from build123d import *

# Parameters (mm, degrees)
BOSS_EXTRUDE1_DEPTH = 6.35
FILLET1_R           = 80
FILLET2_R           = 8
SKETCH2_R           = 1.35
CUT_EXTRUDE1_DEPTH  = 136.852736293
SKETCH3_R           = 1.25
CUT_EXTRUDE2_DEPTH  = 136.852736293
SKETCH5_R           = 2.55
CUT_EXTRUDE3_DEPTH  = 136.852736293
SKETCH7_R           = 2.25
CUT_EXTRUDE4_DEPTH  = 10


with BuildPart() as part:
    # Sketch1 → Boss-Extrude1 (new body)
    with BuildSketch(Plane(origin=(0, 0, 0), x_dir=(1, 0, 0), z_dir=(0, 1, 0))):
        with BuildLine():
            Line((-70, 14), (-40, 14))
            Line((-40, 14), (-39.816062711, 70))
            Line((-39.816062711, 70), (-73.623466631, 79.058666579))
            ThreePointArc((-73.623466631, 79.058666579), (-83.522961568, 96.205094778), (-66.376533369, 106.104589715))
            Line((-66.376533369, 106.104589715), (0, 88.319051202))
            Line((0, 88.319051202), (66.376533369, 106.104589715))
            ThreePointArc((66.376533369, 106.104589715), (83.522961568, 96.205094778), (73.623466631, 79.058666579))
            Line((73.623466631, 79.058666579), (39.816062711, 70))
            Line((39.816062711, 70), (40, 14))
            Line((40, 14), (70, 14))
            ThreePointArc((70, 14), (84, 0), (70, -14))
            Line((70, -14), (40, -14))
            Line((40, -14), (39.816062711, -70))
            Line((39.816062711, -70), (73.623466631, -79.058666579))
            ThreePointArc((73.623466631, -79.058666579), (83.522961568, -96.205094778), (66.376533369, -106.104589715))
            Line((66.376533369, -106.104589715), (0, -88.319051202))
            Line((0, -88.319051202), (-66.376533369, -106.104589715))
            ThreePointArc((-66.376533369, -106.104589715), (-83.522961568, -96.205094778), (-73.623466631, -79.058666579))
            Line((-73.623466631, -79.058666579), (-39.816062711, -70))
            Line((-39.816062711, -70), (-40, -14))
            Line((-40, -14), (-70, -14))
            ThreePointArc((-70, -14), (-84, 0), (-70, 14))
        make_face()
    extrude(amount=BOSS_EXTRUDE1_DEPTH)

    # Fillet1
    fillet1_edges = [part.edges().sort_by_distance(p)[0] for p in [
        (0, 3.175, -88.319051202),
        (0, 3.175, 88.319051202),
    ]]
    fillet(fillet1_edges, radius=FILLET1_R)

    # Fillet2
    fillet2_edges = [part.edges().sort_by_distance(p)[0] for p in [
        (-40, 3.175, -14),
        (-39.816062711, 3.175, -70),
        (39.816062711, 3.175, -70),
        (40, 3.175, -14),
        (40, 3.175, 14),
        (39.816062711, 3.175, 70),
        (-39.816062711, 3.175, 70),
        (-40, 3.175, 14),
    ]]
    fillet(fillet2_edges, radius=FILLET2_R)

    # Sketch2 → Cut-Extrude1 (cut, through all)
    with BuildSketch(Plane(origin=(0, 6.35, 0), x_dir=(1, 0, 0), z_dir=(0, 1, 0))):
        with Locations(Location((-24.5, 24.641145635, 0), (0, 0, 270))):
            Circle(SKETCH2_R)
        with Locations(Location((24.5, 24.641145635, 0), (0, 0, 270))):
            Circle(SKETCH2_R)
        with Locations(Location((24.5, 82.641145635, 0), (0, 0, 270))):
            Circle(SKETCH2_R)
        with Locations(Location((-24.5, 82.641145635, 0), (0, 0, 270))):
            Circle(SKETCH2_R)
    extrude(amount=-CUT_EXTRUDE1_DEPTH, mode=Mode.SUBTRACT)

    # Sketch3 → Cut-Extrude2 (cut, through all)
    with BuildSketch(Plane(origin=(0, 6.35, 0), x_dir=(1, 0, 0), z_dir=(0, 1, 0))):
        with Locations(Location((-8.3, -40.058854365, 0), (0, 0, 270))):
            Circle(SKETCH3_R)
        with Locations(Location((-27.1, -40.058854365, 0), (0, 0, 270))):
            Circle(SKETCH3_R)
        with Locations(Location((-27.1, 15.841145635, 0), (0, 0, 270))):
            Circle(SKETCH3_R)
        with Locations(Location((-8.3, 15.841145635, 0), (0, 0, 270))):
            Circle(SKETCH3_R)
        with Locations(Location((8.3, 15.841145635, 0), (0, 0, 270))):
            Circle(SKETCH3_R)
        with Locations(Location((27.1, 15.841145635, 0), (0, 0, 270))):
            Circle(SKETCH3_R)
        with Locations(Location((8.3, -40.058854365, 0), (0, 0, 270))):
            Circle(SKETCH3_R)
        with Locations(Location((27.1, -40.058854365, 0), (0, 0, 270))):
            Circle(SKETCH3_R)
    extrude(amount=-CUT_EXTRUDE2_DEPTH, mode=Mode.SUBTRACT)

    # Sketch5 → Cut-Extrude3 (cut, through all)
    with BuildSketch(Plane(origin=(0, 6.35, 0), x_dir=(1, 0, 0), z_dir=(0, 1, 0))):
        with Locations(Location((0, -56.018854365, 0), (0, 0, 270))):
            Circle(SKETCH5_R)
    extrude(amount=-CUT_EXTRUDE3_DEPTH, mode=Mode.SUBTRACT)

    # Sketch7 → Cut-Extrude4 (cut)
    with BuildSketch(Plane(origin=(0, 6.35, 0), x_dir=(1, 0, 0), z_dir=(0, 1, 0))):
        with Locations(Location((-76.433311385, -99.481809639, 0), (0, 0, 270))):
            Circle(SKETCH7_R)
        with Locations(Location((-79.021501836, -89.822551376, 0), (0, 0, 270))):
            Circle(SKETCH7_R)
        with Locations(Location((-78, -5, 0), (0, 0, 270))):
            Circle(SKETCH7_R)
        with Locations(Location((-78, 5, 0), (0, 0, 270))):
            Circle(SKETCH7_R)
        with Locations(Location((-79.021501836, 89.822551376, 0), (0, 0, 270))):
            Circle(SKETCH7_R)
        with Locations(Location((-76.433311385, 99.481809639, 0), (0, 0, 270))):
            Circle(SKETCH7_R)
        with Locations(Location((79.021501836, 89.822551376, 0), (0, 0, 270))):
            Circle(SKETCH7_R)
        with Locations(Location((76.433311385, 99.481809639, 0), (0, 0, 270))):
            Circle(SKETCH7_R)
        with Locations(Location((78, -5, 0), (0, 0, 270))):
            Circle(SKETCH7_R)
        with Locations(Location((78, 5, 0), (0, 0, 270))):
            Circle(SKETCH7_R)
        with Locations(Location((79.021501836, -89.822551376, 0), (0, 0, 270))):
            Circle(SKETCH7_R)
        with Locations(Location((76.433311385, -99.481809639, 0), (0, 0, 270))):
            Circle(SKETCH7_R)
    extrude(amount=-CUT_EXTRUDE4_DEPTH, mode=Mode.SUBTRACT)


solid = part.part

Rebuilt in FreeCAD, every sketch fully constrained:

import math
import FreeCAD as App
import Part
import Sketcher

V = App.Vector
Q = App.Units.Quantity


def edges_at(feature, points):
    """Names of the edges that pass closest to the given points."""
    edges = feature.Shape.Edges
    near = lambda p: min(range(len(edges)), key=lambda i: edges[i].distToShape(Part.Vertex(*p))[0])
    return sorted({f"Edge{near(p) + 1}" for p in points})

doc = App.newDocument("Part")
body = doc.addObject("PartDesign::Body", "Body")

sketch1 = body.newObject("Sketcher::SketchObject", "Sketch")
sketch1.AttachmentSupport = (doc.getObject("XZ_Plane"), [""])
sketch1.MapMode = "FlatFace"
sketch1.addGeometry([
    Part.LineSegment(V(-40, -14, 0), V(-70, -14, 0)),
    Part.ArcOfCircle(Part.Circle(V(-70, 0, 0), V(0, 0, 1), 14), math.radians(90), math.radians(270)),
    Part.LineSegment(V(-70, 14, 0), V(-40, 14, 0)),
    Part.LineSegment(V(-40, 14, 0), V(-39.816063, 70, 0)),
    Part.LineSegment(V(-39.816063, 70, 0), V(-73.623467, 79.058667, 0)),
    Part.ArcOfCircle(Part.Circle(V(-70, 92.581628, 0), V(0, 0, 1), 14), math.radians(75), math.radians(255)),
    Part.LineSegment(V(-66.376533, 106.10459, 0), V(0, 88.319051, 0)),
    Part.LineSegment(V(0, 88.319051, 0), V(66.376533, 106.10459, 0)),
    Part.ArcOfCircle(Part.Circle(V(70, 92.581628, 0), V(0, 0, 1), 14), math.radians(-75), math.radians(105)),
    Part.LineSegment(V(73.623467, 79.058667, 0), V(39.816063, 70, 0)),
    Part.LineSegment(V(39.816063, 70, 0), V(40, 14, 0)),
    Part.LineSegment(V(40, 14, 0), V(70, 14, 0)),
    Part.ArcOfCircle(Part.Circle(V(70, 0, 0), V(0, 0, 1), 14), math.radians(-90), math.radians(90)),
    Part.LineSegment(V(70, -14, 0), V(40, -14, 0)),
    Part.LineSegment(V(40, -14, 0), V(39.816063, -70, 0)),
    Part.LineSegment(V(39.816063, -70, 0), V(73.623467, -79.058667, 0)),
    Part.ArcOfCircle(Part.Circle(V(70, -92.581628, 0), V(0, 0, 1), 14), math.radians(-105), math.radians(75)),
    Part.LineSegment(V(66.376533, -106.10459, 0), V(0, -88.319051, 0)),
    Part.LineSegment(V(0, -88.319051, 0), V(-66.376533, -106.10459, 0)),
    Part.ArcOfCircle(Part.Circle(V(-70, -92.581628, 0), V(0, 0, 1), 14), math.radians(105), math.radians(285)),
    Part.LineSegment(V(-73.623467, -79.058667, 0), V(-39.816063, -70, 0)),
    Part.LineSegment(V(-39.816063, -70, 0), V(-40, -14, 0)),
], False)
sketch1.addConstraint([
    Sketcher.Constraint("Tangent", 0, 2, 1, 2),
    Sketcher.Constraint("Tangent", 1, 1, 2, 1),
    Sketcher.Constraint("Coincident", 2, 2, 3, 1),
    Sketcher.Constraint("Coincident", 3, 2, 4, 1),
    Sketcher.Constraint("Tangent", 4, 2, 5, 2),
    Sketcher.Constraint("Tangent", 5, 1, 6, 1),
    Sketcher.Constraint("Coincident", 6, 2, 7, 1),
    Sketcher.Constraint("Tangent", 7, 2, 8, 2),
    Sketcher.Constraint("Tangent", 8, 1, 9, 1),
    Sketcher.Constraint("Coincident", 9, 2, 10, 1),
    Sketcher.Constraint("Coincident", 10, 2, 11, 1),
    Sketcher.Constraint("Tangent", 11, 2, 12, 2),
    Sketcher.Constraint("Tangent", 12, 1, 13, 1),
    Sketcher.Constraint("Coincident", 13, 2, 14, 1),
    Sketcher.Constraint("Coincident", 14, 2, 15, 1),
    Sketcher.Constraint("Tangent", 15, 2, 16, 2),
    Sketcher.Constraint("Tangent", 16, 1, 17, 1),
    Sketcher.Constraint("Coincident", 17, 2, 18, 1),
    Sketcher.Constraint("Tangent", 18, 2, 19, 2),
    Sketcher.Constraint("Tangent", 19, 1, 20, 1),
    Sketcher.Constraint("Coincident", 20, 2, 21, 1),
    Sketcher.Constraint("Coincident", 21, 2, 0, 1),
    Sketcher.Constraint("Horizontal", 0),
    Sketcher.Constraint("Horizontal", 2),
    Sketcher.Constraint("Horizontal", 11),
    Sketcher.Constraint("Horizontal", 13),
    Sketcher.Constraint("Equal", 1, 5),
    Sketcher.Constraint("Equal", 5, 8),
    Sketcher.Constraint("Equal", 8, 12),
    Sketcher.Constraint("Equal", 12, 16),
    Sketcher.Constraint("Equal", 16, 19),
    Sketcher.Constraint("Symmetric", 1, 3, 12, 3, -1, 1),
    Sketcher.Constraint("Symmetric", 5, 3, 16, 3, -1, 1),
    Sketcher.Constraint("Symmetric", 8, 3, 19, 3, -1, 1),
    Sketcher.Constraint("Symmetric", 3, 2, 14, 2, -1, 1),
    Sketcher.Constraint("Symmetric", 6, 2, 17, 2, -1, 1),
    Sketcher.Constraint("Symmetric", 9, 2, 20, 2, -1, 1),
    Sketcher.Constraint("Symmetric", 5, 3, 8, 3, -2),
    Sketcher.Constraint("Symmetric", 3, 2, 9, 2, -2),
    Sketcher.Constraint("Symmetric", 2, 2, 10, 2, -2),
    Sketcher.Constraint("PointOnObject", 6, 2, -2),
    Sketcher.Constraint("Parallel", 4, 6),
    Sketcher.Constraint("Parallel", 3, 14),
    Sketcher.Constraint("Parallel", 10, 21),
    Sketcher.Constraint("Vertical", 1, 3, 5, 3),
    Sketcher.Constraint("Radius", 1, Q("14 mm")),
    Sketcher.Constraint("DistanceX", 0, 2, 0, 1, Q("30 mm")),
    Sketcher.Constraint("Angle", 4, Q("165 deg")),
    Sketcher.Constraint("Distance", 4, Q("35 mm")),
    Sketcher.Constraint("DistanceX", 1, 3, -1, 1, Q("70 mm")),
    Sketcher.Constraint("DistanceY", -1, 1, 3, 2, Q("70 mm")),
])
pad1 = body.newObject("PartDesign::Pad", "Pad")
pad1.Profile = sketch1
pad1.Length = 6.35
pad1.Reversed = True
doc.recompute()

fillet = body.newObject("PartDesign::Fillet", "Fillet")
fillet.Base = (pad1, edges_at(pad1, [(0, 3.175, -88.319), (0, 3.175, 88.319)]))
fillet.Radius = 80
doc.recompute()

fillet2 = body.newObject("PartDesign::Fillet", "Fillet001")
fillet2.Base = (fillet, edges_at(fillet, [
    (-40, 3.175, -14),
    (-39.816, 3.175, -70),
    (39.816, 3.175, -70),
    (40, 3.175, -14),
    (40, 3.175, 14),
    (39.816, 3.175, 70),
    (-39.816, 3.175, 70),
    (-40, 3.175, 14),
]))
fillet2.Radius = 8

sketch2 = body.newObject("Sketcher::SketchObject", "Sketch001")
sketch2.AttachmentSupport = (doc.getObject("XZ_Plane"), [""])
sketch2.MapMode = "FlatFace"
sketch2.AttachmentOffset = App.Placement(V(0, 0, -6.35), App.Rotation())
sketch2.addGeometry([
    Part.Circle(V(-24.5, -24.641146, 0), V(0, 0, 1), 1.35),
    Part.Circle(V(24.5, -24.641146, 0), V(0, 0, 1), 1.35),
    Part.Circle(V(24.5, -82.641146, 0), V(0, 0, 1), 1.35),
    Part.Circle(V(-24.5, -82.641146, 0), V(0, 0, 1), 1.35),
], False)
sketch2.addConstraint([
    Sketcher.Constraint("Equal", 0, 1),
    Sketcher.Constraint("Equal", 1, 2),
    Sketcher.Constraint("Equal", 2, 3),
    Sketcher.Constraint("Symmetric", 0, 3, 1, 3, -2),
    Sketcher.Constraint("Symmetric", 2, 3, 3, 3, -2),
    Sketcher.Constraint("Vertical", 1, 3, 2, 3),
    Sketcher.Constraint("Diameter", 0, Q("2.7 mm")),
    Sketcher.Constraint("DistanceX", 0, 3, 1, 3, Q("49 mm")),
    Sketcher.Constraint("DistanceY", 2, 3, 1, 3, Q("58 mm")),
    Sketcher.Constraint("DistanceY", 0, 3, -1, 1, Q("24.641146 mm")),
])
pocket1 = body.newObject("PartDesign::Pocket", "Pocket")
pocket1.Profile = sketch2
pocket1.Type = "ThroughAll"
pocket1.Reversed = True

sketch3 = body.newObject("Sketcher::SketchObject", "Sketch002")
sketch3.AttachmentSupport = (doc.getObject("XZ_Plane"), [""])
sketch3.MapMode = "FlatFace"
sketch3.AttachmentOffset = App.Placement(V(0, 0, -6.35), App.Rotation())
sketch3.addGeometry([
    Part.Circle(V(-8.3, 40.058854, 0), V(0, 0, 1), 1.25),
    Part.Circle(V(-27.1, 40.058854, 0), V(0, 0, 1), 1.25),
    Part.Circle(V(-27.1, -15.841146, 0), V(0, 0, 1), 1.25),
    Part.Circle(V(-8.3, -15.841146, 0), V(0, 0, 1), 1.25),
    Part.Circle(V(8.3, -15.841146, 0), V(0, 0, 1), 1.25),
    Part.Circle(V(27.1, -15.841146, 0), V(0, 0, 1), 1.25),
    Part.Circle(V(8.3, 40.058854, 0), V(0, 0, 1), 1.25),
    Part.Circle(V(27.1, 40.058854, 0), V(0, 0, 1), 1.25),
], False)
sketch3.addConstraint([
    Sketcher.Constraint("Equal", 0, 1),
    Sketcher.Constraint("Equal", 1, 2),
    Sketcher.Constraint("Equal", 2, 3),
    Sketcher.Constraint("Equal", 3, 4),
    Sketcher.Constraint("Equal", 4, 5),
    Sketcher.Constraint("Equal", 5, 6),
    Sketcher.Constraint("Equal", 6, 7),
    Sketcher.Constraint("Symmetric", 3, 3, 4, 3, -2),
    Sketcher.Constraint("Symmetric", 2, 3, 5, 3, -2),
    Sketcher.Constraint("Symmetric", 0, 3, 6, 3, -2),
    Sketcher.Constraint("Symmetric", 1, 3, 7, 3, -2),
    Sketcher.Constraint("Horizontal", 0, 3, 1, 3),
    Sketcher.Constraint("Horizontal", 2, 3, 3, 3),
    Sketcher.Constraint("Vertical", 1, 3, 2, 3),
    Sketcher.Constraint("Vertical", 0, 3, 3, 3),
    Sketcher.Constraint("Diameter", 0, Q("2.5 mm")),
    Sketcher.Constraint("DistanceX", 0, 3, -1, 1, Q("8.3 mm")),
    Sketcher.Constraint("DistanceX", 1, 3, -1, 1, Q("27.1 mm")),
    Sketcher.Constraint("DistanceY", 2, 3, 1, 3, Q("55.9 mm")),
    Sketcher.Constraint("DistanceY", -1, 1, 0, 3, Q("40.058854 mm")),
])
pocket2 = body.newObject("PartDesign::Pocket", "Pocket001")
pocket2.Profile = sketch3
pocket2.Type = "ThroughAll"
pocket2.Reversed = True

sketch4 = body.newObject("Sketcher::SketchObject", "Sketch003")
sketch4.AttachmentSupport = (doc.getObject("XZ_Plane"), [""])
sketch4.MapMode = "FlatFace"
sketch4.AttachmentOffset = App.Placement(V(0, 0, -6.35), App.Rotation())
sketch4.addGeometry(Part.Circle(V(0, 56.018854, 0), V(0, 0, 1), 2.55), False)
sketch4.addConstraint([
    Sketcher.Constraint("PointOnObject", 0, 3, -2),
    Sketcher.Constraint("Diameter", 0, Q("5.1 mm")),
    Sketcher.Constraint("DistanceY", -1, 1, 0, 3, Q("56.018854 mm")),
])
pocket3 = body.newObject("PartDesign::Pocket", "Pocket002")
pocket3.Profile = sketch4
pocket3.Type = "ThroughAll"
pocket3.Reversed = True

sketch5 = body.newObject("Sketcher::SketchObject", "Sketch004")
sketch5.AttachmentSupport = (doc.getObject("XZ_Plane"), [""])
sketch5.MapMode = "FlatFace"
sketch5.AttachmentOffset = App.Placement(V(0, 0, -6.35), App.Rotation())
sketch5.addGeometry([
    Part.Circle(V(-76.433311, 99.48181, 0), V(0, 0, 1), 2.25),
    Part.Circle(V(-79.021502, 89.822551, 0), V(0, 0, 1), 2.25),
    Part.Circle(V(-78, 5, 0), V(0, 0, 1), 2.25),
    Part.Circle(V(-78, -5, 0), V(0, 0, 1), 2.25),
    Part.Circle(V(-79.021502, -89.822551, 0), V(0, 0, 1), 2.25),
    Part.Circle(V(-76.433311, -99.48181, 0), V(0, 0, 1), 2.25),
    Part.Circle(V(79.021502, -89.822551, 0), V(0, 0, 1), 2.25),
    Part.Circle(V(76.433311, -99.48181, 0), V(0, 0, 1), 2.25),
    Part.Circle(V(78, 5, 0), V(0, 0, 1), 2.25),
    Part.Circle(V(78, -5, 0), V(0, 0, 1), 2.25),
    Part.Circle(V(79.021502, 89.822551, 0), V(0, 0, 1), 2.25),
    Part.Circle(V(76.433311, 99.48181, 0), V(0, 0, 1), 2.25),
], False)
sketch5.addConstraint([
    Sketcher.Constraint("Equal", 0, 1),
    Sketcher.Constraint("Equal", 1, 2),
    Sketcher.Constraint("Equal", 2, 3),
    Sketcher.Constraint("Equal", 3, 4),
    Sketcher.Constraint("Equal", 4, 5),
    Sketcher.Constraint("Equal", 5, 6),
    Sketcher.Constraint("Equal", 6, 7),
    Sketcher.Constraint("Equal", 7, 8),
    Sketcher.Constraint("Equal", 8, 9),
    Sketcher.Constraint("Equal", 9, 10),
    Sketcher.Constraint("Equal", 10, 11),
    Sketcher.Constraint("Symmetric", 1, 3, 6, 3, -1, 1),
    Sketcher.Constraint("Symmetric", 0, 3, 7, 3, -1, 1),
    Sketcher.Constraint("Symmetric", 3, 3, 8, 3, -1, 1),
    Sketcher.Constraint("Symmetric", 2, 3, 9, 3, -1, 1),
    Sketcher.Constraint("Symmetric", 4, 3, 10, 3, -1, 1),
    Sketcher.Constraint("Symmetric", 5, 3, 11, 3, -1, 1),
    Sketcher.Constraint("Symmetric", 4, 3, 6, 3, -2),
    Sketcher.Constraint("Symmetric", 5, 3, 7, 3, -2),
    Sketcher.Constraint("Symmetric", 2, 3, 8, 3, -2),
    Sketcher.Constraint("Diameter", 0, Q("4.5 mm")),
    Sketcher.Constraint("DistanceX", 2, 3, -1, 1, Q("78 mm")),
    Sketcher.Constraint("DistanceY", -1, 1, 2, 3, Q("5 mm")),
    Sketcher.Constraint("DistanceX", 1, 3, -1, 1, Q("79.021502 mm")),
    Sketcher.Constraint("DistanceX", 0, 3, -1, 1, Q("76.433311 mm")),
    Sketcher.Constraint("DistanceY", -1, 1, 0, 3, Q("99.48181 mm")),
    Sketcher.Constraint("DistanceY", -1, 1, 1, 3, Q("89.822551 mm")),
])
pocket4 = body.newObject("PartDesign::Pocket", "Pocket003")
pocket4.Profile = sketch5
pocket4.Length = 10
pocket4.Reversed = True

doc.recompute()
